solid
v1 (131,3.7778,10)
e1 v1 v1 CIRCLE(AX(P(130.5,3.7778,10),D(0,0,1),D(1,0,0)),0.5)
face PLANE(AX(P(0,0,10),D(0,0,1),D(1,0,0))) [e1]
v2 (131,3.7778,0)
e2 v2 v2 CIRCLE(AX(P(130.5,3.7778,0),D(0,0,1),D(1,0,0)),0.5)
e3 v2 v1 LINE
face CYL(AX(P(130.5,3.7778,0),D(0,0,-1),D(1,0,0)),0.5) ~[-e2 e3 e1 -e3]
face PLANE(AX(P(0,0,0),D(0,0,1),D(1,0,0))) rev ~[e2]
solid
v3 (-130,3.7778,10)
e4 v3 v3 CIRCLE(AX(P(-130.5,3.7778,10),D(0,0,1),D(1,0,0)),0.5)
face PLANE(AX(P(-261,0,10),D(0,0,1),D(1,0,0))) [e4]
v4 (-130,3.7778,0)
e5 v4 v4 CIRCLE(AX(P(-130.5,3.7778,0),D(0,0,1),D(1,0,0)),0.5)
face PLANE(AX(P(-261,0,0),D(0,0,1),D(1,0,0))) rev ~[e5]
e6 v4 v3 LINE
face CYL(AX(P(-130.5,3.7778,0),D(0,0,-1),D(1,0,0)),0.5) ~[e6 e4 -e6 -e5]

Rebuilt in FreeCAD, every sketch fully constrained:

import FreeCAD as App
import Part
import Sketcher

doc = App.newDocument("Part")
params = doc.addObject("Spreadsheet::Sheet", "Params")
for row, (alias, value) in enumerate([
    ("sketch1_diameter", "1 mm"),
    ("pad1_length", "10 mm"),
    ("linearpattern_pitch", "261 mm"),
], start=1):
    params.set(f"A{row}", alias)
    params.set(f"B{row}", "=" + value)
    params.setAlias(f"B{row}", alias)

body = doc.addObject("PartDesign::Body", "Body")
body.AllowCompound = True

# Sketch on XY plane
sketch1 = doc.addObject("Sketcher::SketchObject", "Sketch")
body.addObject(sketch1)
sketch1.AttachmentSupport = (doc.XY_Plane, [""])
sketch1.MapMode = "FlatFace"
sketch1.addGeometry(Part.Circle(App.Vector(130.5, 3.7778, 0), App.Vector(0, 0, 1), 0.5), False)
sketch1.addConstraint([
    Sketcher.Constraint("Diameter", 0, 1.0),
    Sketcher.Constraint("DistanceX", -1, 1, 0, 3, 130.5),
    Sketcher.Constraint("DistanceY", -1, 1, 0, 3, 3.7778),
])
sketch1.setExpression("Constraints[0]", "Params.sketch1_diameter")
pad1 = doc.addObject("PartDesign::Pad", "Pad")
body.addObject(pad1)
pad1.Profile = sketch1
pad1.setExpression("Length", "Params.pad1_length")
doc.recompute()

linearpattern = doc.addObject("PartDesign::LinearPattern", "LinearPattern")
body.addObject(linearpattern)
linearpattern.Originals = [pad1]
linearpattern.Direction = (doc.X_Axis, [""])
linearpattern.Mode = "offset"
linearpattern.setExpression("Offset", "Params.linearpattern_pitch")
linearpattern.Occurrences = 2
linearpattern.Reversed = True
body.Tip = linearpattern

doc.recompute()
